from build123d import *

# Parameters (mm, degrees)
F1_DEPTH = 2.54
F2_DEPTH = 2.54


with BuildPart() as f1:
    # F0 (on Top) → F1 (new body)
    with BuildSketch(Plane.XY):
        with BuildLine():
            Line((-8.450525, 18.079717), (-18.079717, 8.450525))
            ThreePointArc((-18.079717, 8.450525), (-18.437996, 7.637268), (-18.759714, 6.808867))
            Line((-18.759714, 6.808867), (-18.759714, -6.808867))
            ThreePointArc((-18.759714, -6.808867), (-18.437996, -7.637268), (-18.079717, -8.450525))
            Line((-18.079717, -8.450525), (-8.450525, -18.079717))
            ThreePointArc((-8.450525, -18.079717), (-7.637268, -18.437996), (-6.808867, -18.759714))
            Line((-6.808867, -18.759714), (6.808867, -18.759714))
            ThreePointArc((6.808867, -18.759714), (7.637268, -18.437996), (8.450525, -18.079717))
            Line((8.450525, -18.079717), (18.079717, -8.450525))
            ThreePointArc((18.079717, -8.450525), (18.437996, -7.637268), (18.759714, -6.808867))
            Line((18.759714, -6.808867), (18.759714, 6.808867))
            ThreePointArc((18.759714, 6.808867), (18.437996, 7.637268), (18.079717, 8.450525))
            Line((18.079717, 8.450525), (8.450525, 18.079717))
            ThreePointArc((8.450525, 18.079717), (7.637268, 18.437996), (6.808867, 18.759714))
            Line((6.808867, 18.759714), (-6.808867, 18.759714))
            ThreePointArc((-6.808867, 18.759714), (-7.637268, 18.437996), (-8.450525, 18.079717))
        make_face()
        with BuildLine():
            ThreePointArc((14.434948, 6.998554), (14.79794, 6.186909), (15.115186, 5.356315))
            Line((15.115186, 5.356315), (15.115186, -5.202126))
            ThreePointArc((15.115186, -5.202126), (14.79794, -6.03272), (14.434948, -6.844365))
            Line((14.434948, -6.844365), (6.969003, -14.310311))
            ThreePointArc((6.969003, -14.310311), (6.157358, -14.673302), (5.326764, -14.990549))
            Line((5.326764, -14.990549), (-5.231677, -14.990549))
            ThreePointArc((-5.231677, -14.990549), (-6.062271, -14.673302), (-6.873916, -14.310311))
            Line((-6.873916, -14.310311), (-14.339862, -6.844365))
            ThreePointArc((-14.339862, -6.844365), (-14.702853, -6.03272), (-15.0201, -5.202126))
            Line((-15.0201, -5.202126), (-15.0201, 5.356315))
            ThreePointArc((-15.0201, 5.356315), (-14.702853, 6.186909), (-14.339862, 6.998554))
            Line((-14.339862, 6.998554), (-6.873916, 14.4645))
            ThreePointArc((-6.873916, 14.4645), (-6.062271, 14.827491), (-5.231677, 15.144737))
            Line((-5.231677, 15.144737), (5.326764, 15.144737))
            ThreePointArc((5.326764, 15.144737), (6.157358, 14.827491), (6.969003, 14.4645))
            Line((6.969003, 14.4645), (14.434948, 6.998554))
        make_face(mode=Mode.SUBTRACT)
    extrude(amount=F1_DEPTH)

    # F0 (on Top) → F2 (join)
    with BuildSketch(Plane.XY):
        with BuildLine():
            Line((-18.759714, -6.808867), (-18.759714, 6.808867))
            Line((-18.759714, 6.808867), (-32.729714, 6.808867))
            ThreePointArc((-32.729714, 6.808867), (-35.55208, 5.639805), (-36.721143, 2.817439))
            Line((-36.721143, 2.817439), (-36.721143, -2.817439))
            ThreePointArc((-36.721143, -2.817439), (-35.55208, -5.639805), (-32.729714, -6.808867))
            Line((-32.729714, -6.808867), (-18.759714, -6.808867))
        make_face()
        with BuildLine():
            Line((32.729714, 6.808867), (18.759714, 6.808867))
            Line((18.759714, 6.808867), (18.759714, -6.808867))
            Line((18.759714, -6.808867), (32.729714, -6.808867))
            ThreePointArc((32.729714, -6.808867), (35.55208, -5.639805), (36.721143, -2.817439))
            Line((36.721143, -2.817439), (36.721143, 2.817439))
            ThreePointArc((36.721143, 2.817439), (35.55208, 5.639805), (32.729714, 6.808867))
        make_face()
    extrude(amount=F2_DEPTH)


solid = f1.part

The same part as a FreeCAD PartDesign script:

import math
import FreeCAD as App
import Part
import Sketcher
Q = App.Units.Quantity

doc = App.newDocument("Part")
body = doc.addObject("PartDesign::Body", "Body")

sketch1 = doc.addObject("Sketcher::SketchObject", "Sketch")
body.addObject(sketch1)
sketch1.AttachmentSupport = (doc.XY_Plane, [""])
sketch1.MapMode = "FlatFace"
sketch1.addGeometry([
    Part.LineSegment(App.Vector(-8.450525, 18.079717, 0), App.Vector(-18.079717, 8.450525, 0)),
    Part.ArcOfCircle(Part.Circle(App.Vector(-0.000458, 0.00019, 0), App.Vector(0, 0, 1), 19.956647), math.radians(154.94838), math.radians(160.05162)),
    Part.LineSegment(App.Vector(-18.759714, 6.808867, 0), App.Vector(-18.759714, -6.808867, 0)),
    Part.ArcOfCircle(Part.Circle(App.Vector(-0.000458, -0.00019, 0), App.Vector(0, 0, 1), 19.956647), math.radians(-160.05162), math.radians(-154.94838)),
    Part.LineSegment(App.Vector(-18.079717, -8.450525, 0), App.Vector(-8.450525, -18.079717, 0)),
    Part.ArcOfCircle(Part.Circle(App.Vector(-0.00019, -0.000458, 0), App.Vector(0, 0, 1), 19.956647), math.radians(-115.05162), math.radians(-109.94838)),
    Part.LineSegment(App.Vector(-6.808867, -18.759714, 0), App.Vector(6.808867, -18.759714, 0)),
    Part.ArcOfCircle(Part.Circle(App.Vector(0.00019, -0.000458, 0), App.Vector(0, 0, 1), 19.956647), math.radians(-70.05162), math.radians(-64.94838)),
    Part.LineSegment(App.Vector(8.450525, -18.079717, 0), App.Vector(18.079717, -8.450525, 0)),
    Part.ArcOfCircle(Part.Circle(App.Vector(0.000458, -0.00019, 0), App.Vector(0, 0, 1), 19.956647), math.radians(-25.05162), math.radians(-19.94838)),
    Part.LineSegment(App.Vector(18.759714, -6.808867, 0), App.Vector(18.759714, 6.808867, 0)),
    Part.ArcOfCircle(Part.Circle(App.Vector(0.000458, 0.00019, 0), App.Vector(0, 0, 1), 19.956647), math.radians(19.94838), math.radians(25.05162)),
    Part.LineSegment(App.Vector(18.079717, 8.450525, 0), App.Vector(8.450525, 18.079717, 0)),
    Part.ArcOfCircle(Part.Circle(App.Vector(0.00019, 0.000458, 0), App.Vector(0, 0, 1), 19.956647), math.radians(64.94838), math.radians(70.05162)),
    Part.LineSegment(App.Vector(6.808867, 18.759714, 0), App.Vector(-6.808867, 18.759714, 0)),
    Part.ArcOfCircle(Part.Circle(App.Vector(-0.00019, 0.000458, 0), App.Vector(0, 0, 1), 19.956647), math.radians(109.94838), math.radians(115.05162)),
    Part.LineSegment(App.Vector(6.969003, 14.4645, 0), App.Vector(14.434948, 6.998554, 0)),
    Part.ArcOfCircle(Part.Circle(App.Vector(0.047832, 0.077211, 0), App.Vector(0, 0, 1), 15.965403), math.radians(19.308778), math.radians(25.691242)),
    Part.LineSegment(App.Vector(15.115186, 5.356315, 0), App.Vector(15.115186, -5.202126, 0)),
    Part.ArcOfCircle(Part.Circle(App.Vector(0.047832, 0.076978, 0), App.Vector(0, 0, 1), 15.965403), math.radians(-25.691242), math.radians(-19.308778)),
    Part.LineSegment(App.Vector(14.434948, -6.844365, 0), App.Vector(6.969003, -14.310311, 0)),
    Part.ArcOfCircle(Part.Circle(App.Vector(0.047432, 0.077355, 0), App.Vector(0, 0, 1), 15.965998), math.radians(-70.691103), math.radians(-64.308877)),
    Part.LineSegment(App.Vector(5.326764, -14.990549, 0), App.Vector(-5.231677, -14.990549, 0)),
    Part.ArcOfCircle(Part.Circle(App.Vector(0.047655, 0.077355, 0), App.Vector(0, 0, 1), 15.965998), math.radians(-115.691123), math.radians(-109.308897)),
    Part.LineSegment(App.Vector(-6.873916, -14.310311, 0), App.Vector(-14.339862, -6.844365, 0)),
    Part.ArcOfCircle(Part.Circle(App.Vector(0.047804, 0.077206, 0), App.Vector(0, 0, 1), 15.965998), math.radians(-160.691103), math.radians(-154.308877)),
    Part.LineSegment(App.Vector(-15.0201, -5.202126, 0), App.Vector(-15.0201, 5.356315, 0)),
    Part.ArcOfCircle(Part.Circle(App.Vector(0.047804, 0.076983, 0), App.Vector(0, 0, 1), 15.965998), math.radians(154.308877), math.radians(160.691103)),
    Part.LineSegment(App.Vector(-14.339862, 6.998554, 0), App.Vector(-6.873916, 14.4645, 0)),
    Part.ArcOfCircle(Part.Circle(App.Vector(0.047531, 0.077111, 0), App.Vector(0, 0, 1), 15.965694), math.radians(109.308807), math.radians(115.691153)),
    Part.LineSegment(App.Vector(-5.231677, 15.144737, 0), App.Vector(5.326764, 15.144737, 0)),
    Part.ArcOfCircle(Part.Circle(App.Vector(0.047556, 0.077111, 0), App.Vector(0, 0, 1), 15.965694), math.radians(64.308847), math.radians(70.691193)),
], False)
sketch1.addConstraint([
    Sketcher.Constraint("Coincident", 0, 2, 1, 1),
    Sketcher.Constraint("Coincident", 1, 2, 2, 1),
    Sketcher.Constraint("Coincident", 2, 2, 3, 1),
    Sketcher.Constraint("Coincident", 3, 2, 4, 1),
    Sketcher.Constraint("Coincident", 4, 2, 5, 1),
    Sketcher.Constraint("Coincident", 5, 2, 6, 1),
    Sketcher.Constraint("Coincident", 6, 2, 7, 1),
    Sketcher.Constraint("Coincident", 7, 2, 8, 1),
    Sketcher.Constraint("Coincident", 8, 2, 9, 1),
    Sketcher.Constraint("Coincident", 9, 2, 10, 1),
    Sketcher.Constraint("Coincident", 10, 2, 11, 1),
    Sketcher.Constraint("Coincident", 11, 2, 12, 1),
    Sketcher.Constraint("Coincident", 12, 2, 13, 1),
    Sketcher.Constraint("Coincident", 13, 2, 14, 1),
    Sketcher.Constraint("Coincident", 14, 2, 15, 1),
    Sketcher.Constraint("Coincident", 15, 2, 0, 1),
    Sketcher.Constraint("Coincident", 16, 2, 17, 2),
    Sketcher.Constraint("Coincident", 17, 1, 18, 1),
    Sketcher.Constraint("Coincident", 18, 2, 19, 2),
    Sketcher.Constraint("Coincident", 19, 1, 20, 1),
    Sketcher.Constraint("Coincident", 20, 2, 21, 2),
    Sketcher.Constraint("Coincident", 21, 1, 22, 1),
    Sketcher.Constraint("Coincident", 22, 2, 23, 2),
    Sketcher.Constraint("Coincident", 23, 1, 24, 1),
    Sketcher.Constraint("Coincident", 24, 2, 25, 2),
    Sketcher.Constraint("Coincident", 25, 1, 26, 1),
    Sketcher.Constraint("Coincident", 26, 2, 27, 2),
    Sketcher.Constraint("Coincident", 27, 1, 28, 1),
    Sketcher.Constraint("Coincident", 28, 2, 29, 2),
    Sketcher.Constraint("Coincident", 29, 1, 30, 1),
    Sketcher.Constraint("Coincident", 30, 2, 31, 2),
    Sketcher.Constraint("Coincident", 31, 1, 16, 1),
    Sketcher.Constraint("Vertical", 2),
    Sketcher.Constraint("Horizontal", 6),
    Sketcher.Constraint("Vertical", 10),
    Sketcher.Constraint("Horizontal", 14),
    Sketcher.Constraint("Vertical", 18),
    Sketcher.Constraint("Horizontal", 22),
    Sketcher.Constraint("Vertical", 26),
    Sketcher.Constraint("Horizontal", 30),
    Sketcher.Constraint("Equal", 1, 3),
    Sketcher.Constraint("Equal", 3, 5),
    Sketcher.Constraint("Equal", 5, 7),
    Sketcher.Constraint("Equal", 7, 9),
    Sketcher.Constraint("Equal", 9, 11),
    Sketcher.Constraint("Equal", 11, 13),
    Sketcher.Constraint("Equal", 13, 15),
    Sketcher.Constraint("Equal", 17, 19),
    Sketcher.Constraint("Equal", 21, 23),
    Sketcher.Constraint("Equal", 23, 25),
    Sketcher.Constraint("Equal", 25, 27),
    Sketcher.Constraint("Equal", 29, 31),
    Sketcher.Constraint("Symmetric", 1, 3, 9, 3, -1, 1),
    Sketcher.Constraint("Symmetric", 3, 3, 11, 3, -1, 1),
    Sketcher.Constraint("Symmetric", 5, 3, 13, 3, -1, 1),
    Sketcher.Constraint("Symmetric", 7, 3, 15, 3, -1, 1),
    Sketcher.Constraint("Symmetric", 5, 3, 7, 3, -2),
    Sketcher.Constraint("Symmetric", 3, 3, 9, 3, -2),
    Sketcher.Constraint("Perpendicular", 0, 4),
    Sketcher.Constraint("Perpendicular", 4, 8),
    Sketcher.Constraint("Perpendicular", 8, 12),
    Sketcher.Constraint("Parallel", 12, 16),
    Sketcher.Constraint("Perpendicular", 16, 20),
    Sketcher.Constraint("Perpendicular", 20, 24),
    Sketcher.Constraint("Perpendicular", 24, 28),
    Sketcher.Constraint("Horizontal", 21, 3, 23, 3),
    Sketcher.Constraint("Horizontal", 29, 3, 31, 3),
    Sketcher.Constraint("Horizontal", 4, 2, 7, 2),
    Sketcher.Constraint("Horizontal", 3, 2, 8, 2),
    Sketcher.Constraint("Horizontal", 2, 2, 9, 2),
    Sketcher.Constraint("Horizontal", 0, 2, 11, 2),
    Sketcher.Constraint("Horizontal", 20, 2, 23, 1),
    Sketcher.Constraint("Horizontal", 19, 1, 24, 2),
    Sketcher.Constraint("Horizontal", 18, 2, 25, 1),
    Sketcher.Constraint("Horizontal", 17, 1, 26, 2),
    Sketcher.Constraint("Horizontal", 16, 2, 27, 1),
    Sketcher.Constraint("Horizontal", 28, 2, 31, 1),
    Sketcher.Constraint("Vertical", 17, 3, 19, 3),
    Sketcher.Constraint("Vertical", 25, 3, 27, 3),
    Sketcher.Constraint("Vertical", 0, 2, 3, 2),
    Sketcher.Constraint("Vertical", 6, 2, 13, 2),
    Sketcher.Constraint("Vertical", 16, 2, 19, 1),
    Sketcher.Constraint("Vertical", 23, 1, 28, 2),
    Sketcher.Constraint("Vertical", 22, 2, 29, 1),
    Sketcher.Constraint("Equal", 14, 2),
    Sketcher.Constraint("Equal", 30, 18),
    Sketcher.Constraint("DistanceX", 0, 2, -1, 1, Q("0.7117999 in")),
    Sketcher.Constraint("DistanceY", 4, 2, -1, 1, Q("0.7117999 in")),
    Sketcher.Constraint("Radius", 1, Q("19.956647 mm")),
    Sketcher.Constraint("Radius", 17, Q("15.965403 mm")),
    Sketcher.Constraint("Radius", 21, Q("15.965998 mm")),
    Sketcher.Constraint("Radius", 29, Q("15.965694 mm")),
    Sketcher.Constraint("DistanceX", 22, 2, 22, 1, Q("10.558441 mm")),
    Sketcher.Constraint("DistanceX", 25, 1, -1, 1, Q("15.0201 mm")),
    Sketcher.Constraint("DistanceY", -1, 1, 28, 2, Q("14.4645 mm")),
    Sketcher.Constraint("DistanceY", 9, 3, 17, 3, Q("0.077401 mm")),
    Sketcher.Constraint("DistanceX", 21, 3, 17, 3, Q("0.0004 mm")),
    Sketcher.Constraint("DistanceX", 29, 3, 17, 3, Q("0.000301 mm")),
    Sketcher.Constraint("DistanceX", 14, 2, 21, 3, Q("6.856299 mm")),
    Sketcher.Constraint("DistanceY", 8, 2, 18, 2, Q("3.248399 mm")),
    Sketcher.Constraint("DistanceX", 3, 2, 23, 1, Q("11.205801 mm")),
    Sketcher.Constraint("Distance", 16, Q("10.558441 mm")),
    Sketcher.Constraint("DistanceX", 6, 1, 6, 2, Q("13.617734 mm")),
    Sketcher.Constraint("DistanceY", -1, 1, 1, 3, Q("0.00019 mm")),
    Sketcher.Constraint("DistanceX", 5, 3, -1, 1, Q("0.00019 mm")),
    Sketcher.Constraint("DistanceY", 20, 2, -1, 1, Q("14.310311 mm")),
])
pad1 = doc.addObject("PartDesign::Pad", "Pad")
body.addObject(pad1)
pad1.Profile = sketch1
pad1.Length = Q("0.1 in")

sketch2 = doc.addObject("Sketcher::SketchObject", "Sketch001")
body.addObject(sketch2)
sketch2.AttachmentSupport = (doc.XY_Plane, [""])
sketch2.MapMode = "FlatFace"
sketch2.addGeometry([
    Part.LineSegment(App.Vector(-18.8, -6.8, 0), App.Vector(-18.8, 6.8, 0)),
    Part.LineSegment(App.Vector(-18.8, 6.8, 0), App.Vector(-32.7, 6.8, 0)),
    Part.ArcOfCircle(Part.Circle(App.Vector(-32.7, 2.8, 0), App.Vector(0, 0, 1), 4), math.radians(90), math.radians(180)),
    Part.LineSegment(App.Vector(-36.7, 2.8, 0), App.Vector(-36.7, -2.8, 0)),
    Part.ArcOfCircle(Part.Circle(App.Vector(-32.7, -2.8, 0), App.Vector(0, 0, 1), 4), math.radians(-180), math.radians(-90)),
    Part.LineSegment(App.Vector(-32.7, -6.8, 0), App.Vector(-18.8, -6.8, 0)),
    Part.LineSegment(App.Vector(32.7, 6.8, 0), App.Vector(18.8, 6.8, 0)),
    Part.LineSegment(App.Vector(18.8, 6.8, 0), App.Vector(18.8, -6.8, 0)),
    Part.LineSegment(App.Vector(18.8, -6.8, 0), App.Vector(32.7, -6.8, 0)),
    Part.ArcOfCircle(Part.Circle(App.Vector(32.7, -2.8, 0), App.Vector(0, 0, 1), 4), math.radians(-90), math.radians(0)),
    Part.LineSegment(App.Vector(36.7, -2.8, 0), App.Vector(36.7, 2.8, 0)),
    Part.ArcOfCircle(Part.Circle(App.Vector(32.7, 2.8, 0), App.Vector(0, 0, 1), 4), math.radians(0), math.radians(90)),
], False)
sketch2.addConstraint([
    Sketcher.Constraint("Coincident", 0, 2, 1, 1),
    Sketcher.Constraint("Tangent", 1, 2, 2, 1),
    Sketcher.Constraint("Tangent", 2, 2, 3, 1),
    Sketcher.Constraint("Tangent", 3, 2, 4, 1),
    Sketcher.Constraint("Tangent", 4, 2, 5, 1),
    Sketcher.Constraint("Coincident", 5, 2, 0, 1),
    Sketcher.Constraint("Coincident", 6, 2, 7, 1),
    Sketcher.Constraint("Coincident", 7, 2, 8, 1),
    Sketcher.Constraint("Tangent", 8, 2, 9, 1),
    Sketcher.Constraint("Tangent", 9, 2, 10, 1),
    Sketcher.Constraint("Tangent", 10, 2, 11, 1),
    Sketcher.Constraint("Tangent", 11, 2, 6, 1),
    Sketcher.Constraint("Vertical", 0),
    Sketcher.Constraint("Horizontal", 1),
    Sketcher.Constraint("Vertical", 3),
    Sketcher.Constraint("Horizontal", 5),
    Sketcher.Constraint("Horizontal", 6),
    Sketcher.Constraint("Vertical", 7),
    Sketcher.Constraint("Horizontal", 8),
    Sketcher.Constraint("Vertical", 10),
    Sketcher.Constraint("Equal", 2, 4),
    Sketcher.Constraint("Equal", 4, 9),
    Sketcher.Constraint("Equal", 9, 11),
    Sketcher.Constraint("Symmetric", 2, 3, 9, 3, -1, 1),
    Sketcher.Constraint("Symmetric", 5, 2, 6, 2, -1, 1),
    Sketcher.Constraint("Horizontal", 4, 3, 9, 3),
    Sketcher.Constraint("DistanceX", 1, 2, 1, 1, Q("0.55 in")),
    Sketcher.Constraint("Radius", 2, Q("3.991429 mm")),
    Sketcher.Constraint("DistanceY", 0, 1, 0, 2, Q("13.617734 mm")),
    Sketcher.Constraint("DistanceX", 1, 2, 6, 2, Q("51.489428 mm")),
])
pad2 = doc.addObject("PartDesign::Pad", "Pad001")
body.addObject(pad2)
pad2.Profile = sketch2
pad2.Length = Q("0.1 in")

doc.recompute()
